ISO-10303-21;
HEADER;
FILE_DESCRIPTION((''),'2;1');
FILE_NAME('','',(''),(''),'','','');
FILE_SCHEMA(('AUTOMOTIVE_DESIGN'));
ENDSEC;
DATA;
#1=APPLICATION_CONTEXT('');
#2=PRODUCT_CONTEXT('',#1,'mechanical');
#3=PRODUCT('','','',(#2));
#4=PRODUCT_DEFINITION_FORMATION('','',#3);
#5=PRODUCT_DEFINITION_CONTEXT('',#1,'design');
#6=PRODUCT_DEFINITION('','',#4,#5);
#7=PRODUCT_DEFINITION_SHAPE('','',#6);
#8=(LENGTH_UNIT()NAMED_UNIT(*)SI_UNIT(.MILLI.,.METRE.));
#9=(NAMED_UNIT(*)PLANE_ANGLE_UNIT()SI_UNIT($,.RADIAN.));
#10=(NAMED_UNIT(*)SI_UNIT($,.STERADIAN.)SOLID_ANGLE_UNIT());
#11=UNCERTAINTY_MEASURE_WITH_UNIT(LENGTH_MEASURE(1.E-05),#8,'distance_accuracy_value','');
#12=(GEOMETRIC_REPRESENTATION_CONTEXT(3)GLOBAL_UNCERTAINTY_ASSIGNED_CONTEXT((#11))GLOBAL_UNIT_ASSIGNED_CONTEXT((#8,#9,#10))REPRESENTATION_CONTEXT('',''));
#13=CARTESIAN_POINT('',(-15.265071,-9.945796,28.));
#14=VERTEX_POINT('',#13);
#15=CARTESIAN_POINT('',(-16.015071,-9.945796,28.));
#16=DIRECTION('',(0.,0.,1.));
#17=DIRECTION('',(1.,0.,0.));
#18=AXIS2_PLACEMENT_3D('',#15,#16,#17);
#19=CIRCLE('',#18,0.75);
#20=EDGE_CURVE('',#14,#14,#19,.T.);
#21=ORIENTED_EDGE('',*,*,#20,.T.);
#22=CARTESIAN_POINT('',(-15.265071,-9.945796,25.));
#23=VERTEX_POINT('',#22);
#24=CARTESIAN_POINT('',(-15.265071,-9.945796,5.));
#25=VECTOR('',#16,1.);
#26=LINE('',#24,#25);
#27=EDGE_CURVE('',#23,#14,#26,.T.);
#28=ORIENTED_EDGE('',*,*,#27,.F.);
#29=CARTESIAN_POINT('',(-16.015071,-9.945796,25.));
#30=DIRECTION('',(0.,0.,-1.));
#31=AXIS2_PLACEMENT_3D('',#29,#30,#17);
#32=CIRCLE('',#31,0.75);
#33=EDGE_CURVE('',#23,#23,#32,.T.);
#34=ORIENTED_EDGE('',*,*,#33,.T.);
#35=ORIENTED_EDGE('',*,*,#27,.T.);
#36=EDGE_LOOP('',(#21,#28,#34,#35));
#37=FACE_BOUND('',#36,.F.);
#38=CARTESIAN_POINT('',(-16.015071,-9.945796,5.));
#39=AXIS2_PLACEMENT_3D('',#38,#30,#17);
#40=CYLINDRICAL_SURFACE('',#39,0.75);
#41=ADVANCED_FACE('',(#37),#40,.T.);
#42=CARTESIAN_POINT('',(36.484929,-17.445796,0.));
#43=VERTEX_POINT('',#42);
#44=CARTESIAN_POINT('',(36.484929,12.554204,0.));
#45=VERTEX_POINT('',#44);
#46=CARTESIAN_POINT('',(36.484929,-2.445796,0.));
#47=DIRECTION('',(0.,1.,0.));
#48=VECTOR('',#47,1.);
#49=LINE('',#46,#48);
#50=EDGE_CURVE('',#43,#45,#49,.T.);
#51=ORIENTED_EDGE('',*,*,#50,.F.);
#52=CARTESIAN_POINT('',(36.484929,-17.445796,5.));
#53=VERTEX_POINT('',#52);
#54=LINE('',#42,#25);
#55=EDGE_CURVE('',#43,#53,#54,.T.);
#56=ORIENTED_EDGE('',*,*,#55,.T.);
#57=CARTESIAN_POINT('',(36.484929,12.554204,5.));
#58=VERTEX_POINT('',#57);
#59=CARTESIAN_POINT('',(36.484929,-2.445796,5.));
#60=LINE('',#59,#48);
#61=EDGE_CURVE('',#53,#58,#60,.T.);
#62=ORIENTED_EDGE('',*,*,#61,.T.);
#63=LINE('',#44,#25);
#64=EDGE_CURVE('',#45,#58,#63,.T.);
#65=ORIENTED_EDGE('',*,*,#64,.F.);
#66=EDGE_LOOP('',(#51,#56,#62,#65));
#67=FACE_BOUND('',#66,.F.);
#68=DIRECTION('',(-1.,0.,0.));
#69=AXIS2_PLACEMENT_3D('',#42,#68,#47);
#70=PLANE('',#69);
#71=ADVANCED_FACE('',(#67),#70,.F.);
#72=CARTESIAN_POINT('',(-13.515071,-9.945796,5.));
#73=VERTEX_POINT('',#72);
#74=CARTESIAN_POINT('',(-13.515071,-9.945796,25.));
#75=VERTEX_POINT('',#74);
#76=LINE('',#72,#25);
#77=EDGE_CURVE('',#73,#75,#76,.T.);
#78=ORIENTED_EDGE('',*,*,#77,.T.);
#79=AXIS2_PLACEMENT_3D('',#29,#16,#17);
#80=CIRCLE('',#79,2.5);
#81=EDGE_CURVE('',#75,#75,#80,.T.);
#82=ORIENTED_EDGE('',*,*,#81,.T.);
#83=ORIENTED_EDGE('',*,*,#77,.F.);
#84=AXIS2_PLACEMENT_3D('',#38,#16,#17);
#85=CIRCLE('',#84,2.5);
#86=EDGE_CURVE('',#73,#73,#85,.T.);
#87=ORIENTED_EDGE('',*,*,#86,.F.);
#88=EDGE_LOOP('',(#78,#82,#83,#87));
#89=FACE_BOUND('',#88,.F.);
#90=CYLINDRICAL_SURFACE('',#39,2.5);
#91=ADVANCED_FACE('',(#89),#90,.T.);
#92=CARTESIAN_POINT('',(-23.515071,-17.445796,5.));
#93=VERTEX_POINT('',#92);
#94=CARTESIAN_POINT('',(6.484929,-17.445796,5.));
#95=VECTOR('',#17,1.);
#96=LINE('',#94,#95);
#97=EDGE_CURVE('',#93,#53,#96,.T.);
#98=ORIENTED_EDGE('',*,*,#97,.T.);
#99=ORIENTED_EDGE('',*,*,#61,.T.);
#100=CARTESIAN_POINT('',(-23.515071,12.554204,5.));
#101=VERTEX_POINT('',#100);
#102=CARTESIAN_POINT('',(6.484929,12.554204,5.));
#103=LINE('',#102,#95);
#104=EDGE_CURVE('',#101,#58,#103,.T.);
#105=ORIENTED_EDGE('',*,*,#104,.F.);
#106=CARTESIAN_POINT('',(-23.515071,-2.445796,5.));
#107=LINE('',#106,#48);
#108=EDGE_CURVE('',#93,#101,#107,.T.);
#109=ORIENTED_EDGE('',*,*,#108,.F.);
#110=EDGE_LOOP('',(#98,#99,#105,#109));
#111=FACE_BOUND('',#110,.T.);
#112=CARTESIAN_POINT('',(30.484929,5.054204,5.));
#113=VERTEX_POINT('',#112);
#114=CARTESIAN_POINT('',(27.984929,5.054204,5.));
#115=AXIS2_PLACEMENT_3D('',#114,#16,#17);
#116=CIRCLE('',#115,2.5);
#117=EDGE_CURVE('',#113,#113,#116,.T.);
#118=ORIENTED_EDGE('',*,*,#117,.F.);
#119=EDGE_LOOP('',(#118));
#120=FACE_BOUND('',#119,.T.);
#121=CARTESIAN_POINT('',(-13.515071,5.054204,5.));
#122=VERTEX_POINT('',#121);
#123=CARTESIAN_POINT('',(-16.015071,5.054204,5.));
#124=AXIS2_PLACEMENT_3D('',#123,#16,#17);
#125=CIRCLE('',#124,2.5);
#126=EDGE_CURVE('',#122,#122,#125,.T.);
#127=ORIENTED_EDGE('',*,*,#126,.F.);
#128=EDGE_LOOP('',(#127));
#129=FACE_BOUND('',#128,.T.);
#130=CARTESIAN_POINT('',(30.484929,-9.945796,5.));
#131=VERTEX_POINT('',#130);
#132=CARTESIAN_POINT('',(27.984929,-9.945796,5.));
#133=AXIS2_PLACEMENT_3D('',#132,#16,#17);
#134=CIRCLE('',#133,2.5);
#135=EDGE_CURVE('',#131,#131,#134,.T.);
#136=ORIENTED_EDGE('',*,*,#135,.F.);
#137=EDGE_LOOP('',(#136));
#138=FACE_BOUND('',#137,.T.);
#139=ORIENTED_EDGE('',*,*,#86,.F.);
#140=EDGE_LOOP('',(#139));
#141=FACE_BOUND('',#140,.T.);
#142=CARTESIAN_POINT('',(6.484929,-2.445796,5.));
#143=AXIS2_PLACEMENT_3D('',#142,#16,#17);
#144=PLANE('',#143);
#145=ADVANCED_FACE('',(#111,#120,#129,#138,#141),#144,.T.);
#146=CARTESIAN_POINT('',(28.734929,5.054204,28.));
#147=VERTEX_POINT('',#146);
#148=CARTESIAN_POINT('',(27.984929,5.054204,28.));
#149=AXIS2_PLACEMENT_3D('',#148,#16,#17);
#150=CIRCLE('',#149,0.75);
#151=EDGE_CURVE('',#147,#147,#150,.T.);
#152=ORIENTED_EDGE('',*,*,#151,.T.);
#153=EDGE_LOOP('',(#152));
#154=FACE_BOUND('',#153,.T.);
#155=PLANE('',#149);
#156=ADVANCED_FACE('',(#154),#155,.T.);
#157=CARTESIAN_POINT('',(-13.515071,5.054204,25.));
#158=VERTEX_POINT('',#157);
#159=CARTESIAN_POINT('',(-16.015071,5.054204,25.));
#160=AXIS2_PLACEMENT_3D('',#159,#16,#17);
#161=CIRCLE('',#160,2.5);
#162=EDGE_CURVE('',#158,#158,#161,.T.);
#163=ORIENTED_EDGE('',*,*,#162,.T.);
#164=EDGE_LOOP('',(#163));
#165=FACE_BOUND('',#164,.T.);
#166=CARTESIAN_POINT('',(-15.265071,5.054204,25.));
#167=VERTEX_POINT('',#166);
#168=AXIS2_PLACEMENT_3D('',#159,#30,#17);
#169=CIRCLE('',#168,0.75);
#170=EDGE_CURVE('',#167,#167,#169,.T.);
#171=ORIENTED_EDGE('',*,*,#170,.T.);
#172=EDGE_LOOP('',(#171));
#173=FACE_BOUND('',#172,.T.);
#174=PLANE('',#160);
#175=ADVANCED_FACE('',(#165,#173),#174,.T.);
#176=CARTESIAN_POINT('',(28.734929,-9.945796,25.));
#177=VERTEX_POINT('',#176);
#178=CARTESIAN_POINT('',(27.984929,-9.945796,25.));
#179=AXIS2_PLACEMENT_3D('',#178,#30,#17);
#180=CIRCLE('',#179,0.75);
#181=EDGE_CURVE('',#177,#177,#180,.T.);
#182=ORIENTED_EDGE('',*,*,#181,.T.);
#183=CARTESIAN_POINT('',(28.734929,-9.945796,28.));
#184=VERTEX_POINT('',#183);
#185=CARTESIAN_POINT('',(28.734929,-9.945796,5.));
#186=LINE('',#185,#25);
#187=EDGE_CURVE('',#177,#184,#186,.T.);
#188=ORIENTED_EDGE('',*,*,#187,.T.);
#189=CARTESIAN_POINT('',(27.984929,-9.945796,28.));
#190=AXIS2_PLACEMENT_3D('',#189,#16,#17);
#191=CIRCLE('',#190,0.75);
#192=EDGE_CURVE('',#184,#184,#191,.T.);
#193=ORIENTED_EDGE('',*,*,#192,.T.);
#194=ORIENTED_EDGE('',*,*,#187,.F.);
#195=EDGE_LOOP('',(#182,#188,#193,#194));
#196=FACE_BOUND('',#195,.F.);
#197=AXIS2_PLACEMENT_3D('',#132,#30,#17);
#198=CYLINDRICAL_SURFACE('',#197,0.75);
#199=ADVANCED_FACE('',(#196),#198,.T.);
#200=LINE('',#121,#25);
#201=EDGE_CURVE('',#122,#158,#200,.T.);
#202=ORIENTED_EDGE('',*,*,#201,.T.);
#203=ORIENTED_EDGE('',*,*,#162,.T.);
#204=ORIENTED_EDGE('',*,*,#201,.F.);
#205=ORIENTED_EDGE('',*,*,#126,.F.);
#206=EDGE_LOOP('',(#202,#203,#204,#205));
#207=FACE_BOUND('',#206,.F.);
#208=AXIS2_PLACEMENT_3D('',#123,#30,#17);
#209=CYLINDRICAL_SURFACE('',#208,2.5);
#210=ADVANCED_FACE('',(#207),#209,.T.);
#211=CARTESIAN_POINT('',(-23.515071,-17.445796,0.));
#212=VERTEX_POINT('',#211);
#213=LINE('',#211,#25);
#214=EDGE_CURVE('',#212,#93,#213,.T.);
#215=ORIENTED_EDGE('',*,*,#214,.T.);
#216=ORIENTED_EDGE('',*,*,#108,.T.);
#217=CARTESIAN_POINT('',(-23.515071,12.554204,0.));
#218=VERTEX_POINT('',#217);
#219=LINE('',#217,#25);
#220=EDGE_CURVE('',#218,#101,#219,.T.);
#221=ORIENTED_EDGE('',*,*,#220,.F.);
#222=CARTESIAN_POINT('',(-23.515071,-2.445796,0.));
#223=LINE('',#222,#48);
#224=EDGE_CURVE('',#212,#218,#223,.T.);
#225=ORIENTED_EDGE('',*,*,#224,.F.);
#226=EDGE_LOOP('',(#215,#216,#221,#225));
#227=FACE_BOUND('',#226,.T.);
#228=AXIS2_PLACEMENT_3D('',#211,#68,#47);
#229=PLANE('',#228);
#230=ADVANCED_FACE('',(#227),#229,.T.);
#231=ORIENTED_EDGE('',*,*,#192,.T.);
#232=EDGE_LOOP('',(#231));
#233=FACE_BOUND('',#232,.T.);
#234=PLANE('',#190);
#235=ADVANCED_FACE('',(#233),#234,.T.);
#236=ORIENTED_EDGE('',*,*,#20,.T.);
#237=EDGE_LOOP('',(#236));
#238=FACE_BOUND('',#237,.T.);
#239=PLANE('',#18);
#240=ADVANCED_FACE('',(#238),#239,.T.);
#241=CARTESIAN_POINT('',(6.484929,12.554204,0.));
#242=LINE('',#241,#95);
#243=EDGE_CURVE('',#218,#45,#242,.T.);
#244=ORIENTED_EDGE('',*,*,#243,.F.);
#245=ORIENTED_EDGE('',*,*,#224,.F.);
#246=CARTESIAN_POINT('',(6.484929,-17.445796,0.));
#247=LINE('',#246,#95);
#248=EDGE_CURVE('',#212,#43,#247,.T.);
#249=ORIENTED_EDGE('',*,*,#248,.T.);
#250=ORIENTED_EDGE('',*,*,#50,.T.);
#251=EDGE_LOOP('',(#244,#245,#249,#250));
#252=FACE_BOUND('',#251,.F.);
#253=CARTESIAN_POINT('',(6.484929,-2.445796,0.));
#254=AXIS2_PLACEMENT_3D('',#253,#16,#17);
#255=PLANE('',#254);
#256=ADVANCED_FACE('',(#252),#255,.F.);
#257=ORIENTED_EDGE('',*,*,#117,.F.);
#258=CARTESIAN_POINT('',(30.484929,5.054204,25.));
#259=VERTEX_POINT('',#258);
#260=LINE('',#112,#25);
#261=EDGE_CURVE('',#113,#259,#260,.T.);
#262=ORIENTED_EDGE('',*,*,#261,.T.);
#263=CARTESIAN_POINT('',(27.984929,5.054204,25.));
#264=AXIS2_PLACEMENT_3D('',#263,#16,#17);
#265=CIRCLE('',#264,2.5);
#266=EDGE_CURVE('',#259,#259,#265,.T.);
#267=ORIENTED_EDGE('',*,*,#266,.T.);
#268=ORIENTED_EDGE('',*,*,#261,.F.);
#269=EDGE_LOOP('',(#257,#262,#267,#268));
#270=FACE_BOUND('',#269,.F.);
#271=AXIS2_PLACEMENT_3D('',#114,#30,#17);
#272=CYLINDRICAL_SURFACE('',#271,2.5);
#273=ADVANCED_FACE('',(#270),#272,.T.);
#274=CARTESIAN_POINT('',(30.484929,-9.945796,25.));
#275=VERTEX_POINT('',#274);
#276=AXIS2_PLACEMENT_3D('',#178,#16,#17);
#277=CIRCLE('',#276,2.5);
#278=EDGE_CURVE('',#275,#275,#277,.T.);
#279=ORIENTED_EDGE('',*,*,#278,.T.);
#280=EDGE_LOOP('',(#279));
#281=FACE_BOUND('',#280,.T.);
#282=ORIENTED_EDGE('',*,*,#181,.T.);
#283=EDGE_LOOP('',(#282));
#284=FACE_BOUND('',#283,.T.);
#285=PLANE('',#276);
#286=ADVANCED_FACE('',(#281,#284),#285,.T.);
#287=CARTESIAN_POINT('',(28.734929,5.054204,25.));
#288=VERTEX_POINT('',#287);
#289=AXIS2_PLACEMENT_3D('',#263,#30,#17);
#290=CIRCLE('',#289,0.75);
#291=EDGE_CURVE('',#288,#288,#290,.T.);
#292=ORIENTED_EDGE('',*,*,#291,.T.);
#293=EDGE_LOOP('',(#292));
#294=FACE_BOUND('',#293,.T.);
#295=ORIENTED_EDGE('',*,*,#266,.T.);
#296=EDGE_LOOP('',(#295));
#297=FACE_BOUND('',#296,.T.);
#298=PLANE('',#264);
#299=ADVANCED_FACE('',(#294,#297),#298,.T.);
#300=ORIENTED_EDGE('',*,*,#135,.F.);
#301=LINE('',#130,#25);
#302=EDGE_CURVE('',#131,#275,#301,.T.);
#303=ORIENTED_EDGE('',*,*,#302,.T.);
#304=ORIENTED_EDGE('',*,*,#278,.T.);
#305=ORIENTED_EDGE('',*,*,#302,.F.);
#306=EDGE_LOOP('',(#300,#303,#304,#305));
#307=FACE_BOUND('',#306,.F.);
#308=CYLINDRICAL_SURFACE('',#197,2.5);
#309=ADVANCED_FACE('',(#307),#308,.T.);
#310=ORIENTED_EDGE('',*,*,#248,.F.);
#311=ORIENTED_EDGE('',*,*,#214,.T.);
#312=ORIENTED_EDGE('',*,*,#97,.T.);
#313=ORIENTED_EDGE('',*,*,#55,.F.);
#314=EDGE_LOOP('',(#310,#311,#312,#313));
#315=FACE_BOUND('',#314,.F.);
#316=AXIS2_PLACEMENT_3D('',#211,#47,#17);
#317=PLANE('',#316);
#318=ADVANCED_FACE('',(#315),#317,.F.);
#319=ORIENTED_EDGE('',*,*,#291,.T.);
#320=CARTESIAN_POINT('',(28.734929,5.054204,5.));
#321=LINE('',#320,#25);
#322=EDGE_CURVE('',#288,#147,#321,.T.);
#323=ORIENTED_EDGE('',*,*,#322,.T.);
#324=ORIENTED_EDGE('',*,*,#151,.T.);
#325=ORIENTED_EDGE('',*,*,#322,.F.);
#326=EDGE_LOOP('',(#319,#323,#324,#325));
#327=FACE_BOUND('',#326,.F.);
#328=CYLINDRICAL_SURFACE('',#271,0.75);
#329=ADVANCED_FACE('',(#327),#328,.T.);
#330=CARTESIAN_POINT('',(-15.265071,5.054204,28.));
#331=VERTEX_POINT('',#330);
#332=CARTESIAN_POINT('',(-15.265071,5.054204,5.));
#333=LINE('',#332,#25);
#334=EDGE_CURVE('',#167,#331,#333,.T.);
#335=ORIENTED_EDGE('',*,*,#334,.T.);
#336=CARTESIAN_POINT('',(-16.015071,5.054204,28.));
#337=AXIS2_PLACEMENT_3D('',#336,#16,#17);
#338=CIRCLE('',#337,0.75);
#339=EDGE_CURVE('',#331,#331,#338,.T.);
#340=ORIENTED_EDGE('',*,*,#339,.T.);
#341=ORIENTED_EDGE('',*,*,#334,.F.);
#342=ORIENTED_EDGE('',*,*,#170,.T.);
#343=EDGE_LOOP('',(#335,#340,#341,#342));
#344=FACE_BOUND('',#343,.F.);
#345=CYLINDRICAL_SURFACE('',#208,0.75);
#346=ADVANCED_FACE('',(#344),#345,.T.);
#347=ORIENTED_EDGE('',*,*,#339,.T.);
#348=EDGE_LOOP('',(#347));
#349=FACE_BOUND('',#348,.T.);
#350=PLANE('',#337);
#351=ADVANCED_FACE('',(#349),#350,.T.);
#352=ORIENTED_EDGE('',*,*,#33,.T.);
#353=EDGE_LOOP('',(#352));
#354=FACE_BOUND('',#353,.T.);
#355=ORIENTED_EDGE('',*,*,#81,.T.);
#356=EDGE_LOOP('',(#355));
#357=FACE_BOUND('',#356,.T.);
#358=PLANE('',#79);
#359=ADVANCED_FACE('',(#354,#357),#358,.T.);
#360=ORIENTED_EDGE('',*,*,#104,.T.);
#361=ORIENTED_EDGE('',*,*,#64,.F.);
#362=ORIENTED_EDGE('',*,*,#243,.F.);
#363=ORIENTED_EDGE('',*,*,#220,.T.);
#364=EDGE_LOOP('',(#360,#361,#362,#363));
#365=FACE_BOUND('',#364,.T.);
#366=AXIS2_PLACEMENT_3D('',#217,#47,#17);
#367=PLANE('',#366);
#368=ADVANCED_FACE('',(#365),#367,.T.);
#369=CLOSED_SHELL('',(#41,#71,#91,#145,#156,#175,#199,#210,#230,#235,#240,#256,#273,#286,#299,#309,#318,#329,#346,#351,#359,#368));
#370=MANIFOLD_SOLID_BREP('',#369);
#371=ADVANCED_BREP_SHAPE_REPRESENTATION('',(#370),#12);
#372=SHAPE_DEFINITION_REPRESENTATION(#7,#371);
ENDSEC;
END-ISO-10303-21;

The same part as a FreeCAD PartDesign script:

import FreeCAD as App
import Part
import Sketcher

V = App.Vector

doc = App.newDocument("Part")
params = doc.addObject("Spreadsheet::Sheet", "Params")
for row, (alias, value) in enumerate([
    ("sketch1_width", "60 mm"),
    ("sketch1_height", "30 mm"),
    ("pad1_length", "5 mm"),
    ("sketch2_diameter", "5 mm"),
    ("pad2_length", "20 mm"),
    ("sketch3_diameter", "1.5 mm"),
    ("pad3_length", "23 mm"),
], start=1):
    params.set(f"A{row}", alias)
    params.set(f"B{row}", "=" + value)
    params.setAlias(f"B{row}", alias)

body = doc.addObject("PartDesign::Body", "Body")

# Sketch on XY plane
sketch1 = body.newObject("Sketcher::SketchObject", "Sketch")
sketch1.AttachmentSupport = (doc.getObject("XY_Plane"), [""])
sketch1.MapMode = "FlatFace"
sketch1.addGeometry(Part.LineSegment(V(-24, 13, 0), V(-24, -17, 0)), False)
sketch1.addGeometry(Part.LineSegment(V(-24, -17, 0), V(36, -17, 0)), False)
sketch1.addGeometry(Part.LineSegment(V(36, -17, 0), V(36, 13, 0)), False)
sketch1.addGeometry(Part.LineSegment(V(36, 13, 0), V(-24, 13, 0)), False)
sketch1.addConstraint(Sketcher.Constraint("Coincident", 0, 2, 1, 1))
sketch1.addConstraint(Sketcher.Constraint("Coincident", 1, 2, 2, 1))
sketch1.addConstraint(Sketcher.Constraint("Coincident", 2, 2, 3, 1))
sketch1.addConstraint(Sketcher.Constraint("Coincident", 3, 2, 0, 1))
sketch1.addConstraint(Sketcher.Constraint("Vertical", 0))
sketch1.addConstraint(Sketcher.Constraint("Horizontal", 1))
sketch1.addConstraint(Sketcher.Constraint("Vertical", 2))
sketch1.addConstraint(Sketcher.Constraint("Horizontal", 3))
sketch1.addConstraint(Sketcher.Constraint("DistanceX", 1, 1, 1, 2, 60.0))
sketch1.addConstraint(Sketcher.Constraint("DistanceY", 0, 2, 0, 1, 30.0))
sketch1.addConstraint(Sketcher.Constraint("DistanceX", 0, 2, -1, 1, 23.515071))
sketch1.addConstraint(Sketcher.Constraint("DistanceY", 0, 2, -1, 1, 17.445796))
sketch1.setExpression("Constraints[8]", "Params.sketch1_width")
sketch1.setExpression("Constraints[9]", "Params.sketch1_height")
pad1 = body.newObject("PartDesign::Pad", "Pad")
pad1.Profile = sketch1
pad1.setExpression("Length", "Params.pad1_length")

# Sketch on XY plane
sketch2 = body.newObject("Sketcher::SketchObject", "Sketch001")
sketch2.AttachmentSupport = (doc.getObject("XY_Plane"), [""])
sketch2.MapMode = "FlatFace"
sketch2.AttachmentOffset = App.Placement(V(0, 0, 5), App.Rotation())
sketch2.addGeometry(Part.Circle(V(-16, 5.1, 0), V(0, 0, 1), 2.5), False)
sketch2.addGeometry(Part.Circle(V(-16, -9.9, 0), V(0, 0, 1), 2.5), False)
sketch2.addGeometry(Part.Circle(V(28, 5.1, 0), V(0, 0, 1), 2.5), False)
sketch2.addGeometry(Part.Circle(V(28, -9.9, 0), V(0, 0, 1), 2.5), False)
sketch2.addConstraint(Sketcher.Constraint("Equal", 0, 1))
sketch2.addConstraint(Sketcher.Constraint("Equal", 1, 2))
sketch2.addConstraint(Sketcher.Constraint("Equal", 2, 3))
sketch2.addConstraint(Sketcher.Constraint("Horizontal", 0, 3, 2, 3))
sketch2.addConstraint(Sketcher.Constraint("Horizontal", 1, 3, 3, 3))
sketch2.addConstraint(Sketcher.Constraint("Vertical", 0, 3, 1, 3))
sketch2.addConstraint(Sketcher.Constraint("Vertical", 2, 3, 3, 3))
sketch2.addConstraint(Sketcher.Constraint("Diameter", 0, 5.0))
sketch2.addConstraint(Sketcher.Constraint("DistanceY", 1, 3, 0, 3, 15.0))
sketch2.addConstraint(Sketcher.Constraint("DistanceX", 0, 3, 2, 3, 44.0))
sketch2.addConstraint(Sketcher.Constraint("DistanceX", 0, 3, -1, 1, 16.015071))
sketch2.addConstraint(Sketcher.Constraint("DistanceY", -1, 1, 0, 3, 5.054204))
sketch2.setExpression("Constraints[7]", "Params.sketch2_diameter")
pad2 = body.newObject("PartDesign::Pad", "Pad001")
pad2.Profile = sketch2
pad2.setExpression("Length", "Params.pad2_length")

# Sketch on XY plane
sketch3 = body.newObject("Sketcher::SketchObject", "Sketch002")
sketch3.AttachmentSupport = (doc.getObject("XY_Plane"), [""])
sketch3.MapMode = "FlatFace"
sketch3.AttachmentOffset = App.Placement(V(0, 0, 5), App.Rotation())
sketch3.addGeometry(Part.Circle(V(-16, 5.1, 0), V(0, 0, 1), 0.8), False)
sketch3.addGeometry(Part.Circle(V(-16, -9.9, 0), V(0, 0, 1), 0.8), False)
sketch3.addGeometry(Part.Circle(V(28, 5.1, 0), V(0, 0, 1), 0.8), False)
sketch3.addGeometry(Part.Circle(V(28, -9.9, 0), V(0, 0, 1), 0.8), False)
sketch3.addConstraint(Sketcher.Constraint("Equal", 0, 1))
sketch3.addConstraint(Sketcher.Constraint("Equal", 1, 2))
sketch3.addConstraint(Sketcher.Constraint("Equal", 2, 3))
sketch3.addConstraint(Sketcher.Constraint("Horizontal", 0, 3, 2, 3))
sketch3.addConstraint(Sketcher.Constraint("Horizontal", 1, 3, 3, 3))
sketch3.addConstraint(Sketcher.Constraint("Vertical", 0, 3, 1, 3))
sketch3.addConstraint(Sketcher.Constraint("Vertical", 2, 3, 3, 3))
sketch3.addConstraint(Sketcher.Constraint("Diameter", 0, 1.5))
sketch3.addConstraint(Sketcher.Constraint("DistanceY", 1, 3, 0, 3, 15.0))
sketch3.addConstraint(Sketcher.Constraint("DistanceX", 0, 3, 2, 3, 44.0))
sketch3.addConstraint(Sketcher.Constraint("DistanceX", 0, 3, -1, 1, 16.015071))
sketch3.addConstraint(Sketcher.Constraint("DistanceY", -1, 1, 0, 3, 5.054204))
sketch3.setExpression("Constraints[7]", "Params.sketch3_diameter")
pad3 = body.newObject("PartDesign::Pad", "Pad002")
pad3.Profile = sketch3
pad3.setExpression("Length", "Params.pad3_length")

doc.recompute()
